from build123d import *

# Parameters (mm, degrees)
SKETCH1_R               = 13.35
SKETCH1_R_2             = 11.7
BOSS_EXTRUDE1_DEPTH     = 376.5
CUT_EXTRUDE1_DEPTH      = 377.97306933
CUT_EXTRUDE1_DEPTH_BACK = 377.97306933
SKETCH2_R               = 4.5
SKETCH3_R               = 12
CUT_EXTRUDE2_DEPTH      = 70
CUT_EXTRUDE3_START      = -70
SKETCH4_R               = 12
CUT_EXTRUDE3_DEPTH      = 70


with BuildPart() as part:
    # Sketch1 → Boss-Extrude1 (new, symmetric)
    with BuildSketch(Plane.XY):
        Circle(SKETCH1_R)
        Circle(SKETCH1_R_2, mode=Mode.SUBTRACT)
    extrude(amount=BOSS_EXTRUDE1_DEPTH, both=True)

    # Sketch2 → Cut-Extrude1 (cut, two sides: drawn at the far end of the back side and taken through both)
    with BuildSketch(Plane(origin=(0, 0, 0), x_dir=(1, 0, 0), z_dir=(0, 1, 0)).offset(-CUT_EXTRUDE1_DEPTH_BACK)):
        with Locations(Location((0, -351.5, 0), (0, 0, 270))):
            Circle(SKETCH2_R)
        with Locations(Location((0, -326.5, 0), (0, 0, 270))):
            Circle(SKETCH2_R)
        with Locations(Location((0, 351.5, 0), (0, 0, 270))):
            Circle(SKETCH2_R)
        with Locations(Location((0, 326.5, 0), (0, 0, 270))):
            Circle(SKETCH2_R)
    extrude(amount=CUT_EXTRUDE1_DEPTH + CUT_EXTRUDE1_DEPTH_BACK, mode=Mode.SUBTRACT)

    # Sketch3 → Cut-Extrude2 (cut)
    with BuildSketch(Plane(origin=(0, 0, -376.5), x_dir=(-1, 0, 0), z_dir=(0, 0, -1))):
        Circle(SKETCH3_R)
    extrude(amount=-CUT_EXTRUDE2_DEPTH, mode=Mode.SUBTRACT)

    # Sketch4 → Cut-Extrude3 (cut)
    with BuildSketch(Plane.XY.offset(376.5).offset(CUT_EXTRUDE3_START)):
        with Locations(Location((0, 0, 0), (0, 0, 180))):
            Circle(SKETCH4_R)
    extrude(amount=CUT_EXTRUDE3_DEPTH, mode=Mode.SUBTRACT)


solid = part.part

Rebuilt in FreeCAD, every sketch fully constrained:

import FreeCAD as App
import Part
import Sketcher

V = App.Vector

doc = App.newDocument("Part")
body = doc.addObject("PartDesign::Body", "Body")

# Sketch on XY plane
sketch1 = doc.addObject("Sketcher::SketchObject", "Sketch")
body.addObject(sketch1)
sketch1.AttachmentSupport = (doc.XY_Plane, [""])
sketch1.MapMode = "FlatFace"
sketch1.addGeometry(Part.Circle(V(0, 0, 0), V(0, 0, 1), 13.35), False)
sketch1.addGeometry(Part.Circle(V(0, 0, 0), V(0, 0, 1), 11.7), False)
sketch1.addConstraint(Sketcher.Constraint("Coincident", 0, 3, -1, 1))
sketch1.addConstraint(Sketcher.Constraint("Coincident", 1, 3, -1, 1))
sketch1.addConstraint(Sketcher.Constraint("Diameter", 0, 26.7))
sketch1.addConstraint(Sketcher.Constraint("Diameter", 1, 23.4))
pad1 = doc.addObject("PartDesign::Pad", "Pad")
body.addObject(pad1)
pad1.Profile = sketch1
pad1.Length = 753
pad1.Midplane = True

# Sketch on XZ plane
sketch2 = doc.addObject("Sketcher::SketchObject", "Sketch001")
body.addObject(sketch2)
sketch2.AttachmentSupport = (doc.XZ_Plane, [""])
sketch2.MapMode = "FlatFace"
sketch2.addGeometry(Part.Circle(V(0, 351.5, 0), V(0, 0, 1), 4.5), False)
sketch2.addGeometry(Part.Circle(V(0, 326.5, 0), V(0, 0, 1), 4.5), False)
sketch2.addGeometry(Part.Circle(V(0, -351.5, 0), V(0, 0, 1), 4.5), False)
sketch2.addGeometry(Part.Circle(V(0, -326.5, 0), V(0, 0, 1), 4.5), False)
sketch2.addConstraint(Sketcher.Constraint("Equal", 0, 1))
sketch2.addConstraint(Sketcher.Constraint("Equal", 1, 2))
sketch2.addConstraint(Sketcher.Constraint("Equal", 2, 3))
sketch2.addConstraint(Sketcher.Constraint("Symmetric", 0, 3, 2, 3, -1, 1))
sketch2.addConstraint(Sketcher.Constraint("Symmetric", 1, 3, 3, 3, -1, 1))
sketch2.addConstraint(Sketcher.Constraint("PointOnObject", 0, 3, -2))
sketch2.addConstraint(Sketcher.Constraint("PointOnObject", 1, 3, -2))
sketch2.addConstraint(Sketcher.Constraint("Diameter", 0, 9.0))
sketch2.addConstraint(Sketcher.Constraint("DistanceY", 1, 3, 0, 3, 25.0))
sketch2.addConstraint(Sketcher.Constraint("DistanceY", 2, 3, 1, 3, 678.0))
pocket1 = doc.addObject("PartDesign::Pocket", "Pocket")
body.addObject(pocket1)
pocket1.Profile = sketch2
pocket1.Type = "ThroughAll"
pocket1.Midplane = True

# Sketch on XY plane
sketch3 = doc.addObject("Sketcher::SketchObject", "Sketch002")
body.addObject(sketch3)
sketch3.AttachmentSupport = (doc.XY_Plane, [""])
sketch3.MapMode = "FlatFace"
sketch3.AttachmentOffset = App.Placement(V(0, 0, -376.5), App.Rotation())
sketch3.addGeometry(Part.Circle(V(0, 0, 0), V(0, 0, 1), 12), False)
sketch3.addConstraint(Sketcher.Constraint("Coincident", 0, 3, -1, 1))
sketch3.addConstraint(Sketcher.Constraint("Diameter", 0, 24.0))
pocket2 = doc.addObject("PartDesign::Pocket", "Pocket001")
body.addObject(pocket2)
pocket2.Profile = sketch3
pocket2.Length = 70
pocket2.Reversed = True

# Sketch on XY plane
sketch4 = doc.addObject("Sketcher::SketchObject", "Sketch003")
body.addObject(sketch4)
sketch4.AttachmentSupport = (doc.XY_Plane, [""])
sketch4.MapMode = "FlatFace"
sketch4.AttachmentOffset = App.Placement(V(0, 0, 306.5), App.Rotation())
sketch4.addGeometry(Part.Circle(V(0, 0, 0), V(0, 0, 1), 12), False)
sketch4.addConstraint(Sketcher.Constraint("Coincident", 0, 3, -1, 1))
sketch4.addConstraint(Sketcher.Constraint("Diameter", 0, 24.0))
pocket3 = doc.addObject("PartDesign::Pocket", "Pocket002")
body.addObject(pocket3)
pocket3.Profile = sketch4
pocket3.Length = 70
pocket3.Reversed = True

doc.recompute()
